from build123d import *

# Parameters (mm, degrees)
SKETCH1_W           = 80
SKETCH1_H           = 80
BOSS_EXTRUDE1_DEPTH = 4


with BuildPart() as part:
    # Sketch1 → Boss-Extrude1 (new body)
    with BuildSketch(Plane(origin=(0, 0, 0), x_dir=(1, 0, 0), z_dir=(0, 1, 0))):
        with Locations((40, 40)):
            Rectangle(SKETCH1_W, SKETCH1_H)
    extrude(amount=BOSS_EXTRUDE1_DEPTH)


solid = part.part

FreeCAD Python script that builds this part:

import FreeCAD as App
import Part
import Sketcher


def add_polygon(sketch, points):
    """Adds a closed chain of lines whose ends are joined by coincident constraints."""
    first, n = sketch.GeometryCount, len(points)
    for a, b in zip(points, points[1:] + points[:1]):
        sketch.addGeometry(Part.LineSegment(App.Vector(*a, 0), App.Vector(*b, 0)), False)
    for i in range(n):
        sketch.addConstraint(Sketcher.Constraint("Coincident", first + i, 2, first + (i + 1) % n, 1))

doc = App.newDocument("Part")
params = doc.addObject("Spreadsheet::Sheet", "Params")
for row, (alias, value) in enumerate([
    ("sketch1_width", "80 mm"),
    ("pad1_length", "4 mm"),
], start=1):
    params.set(f"A{row}", alias)
    params.set(f"B{row}", "=" + value)
    params.setAlias(f"B{row}", alias)

body = doc.addObject("PartDesign::Body", "Body")

# Sketch on XZ plane
sketch1 = body.newObject("Sketcher::SketchObject", "Sketch")
sketch1.AttachmentSupport = (doc.getObject("XZ_Plane"), [""])
sketch1.MapMode = "FlatFace"
add_polygon(sketch1, [(0, -80), (0, 0), (80, 0), (80, -80)])  # lines 0-3
sketch1.addConstraint([
    Sketcher.Constraint("Vertical", 0),
    Sketcher.Constraint("Horizontal", 1),
    Sketcher.Constraint("Vertical", 2),
    Sketcher.Constraint("Horizontal", 3),
    Sketcher.Constraint("Coincident", 0, 2, -1, 1),
    Sketcher.Constraint("Equal", 3, 0),
    Sketcher.Constraint("DistanceX", 1, 1, 1, 2, 80.0),
])
sketch1.setExpression("Constraints[10]", "Params.sketch1_width")
pad1 = body.newObject("PartDesign::Pad", "Pad")
pad1.Profile = sketch1
pad1.setExpression("Length", "Params.pad1_length")
pad1.Reversed = True

doc.recompute()
